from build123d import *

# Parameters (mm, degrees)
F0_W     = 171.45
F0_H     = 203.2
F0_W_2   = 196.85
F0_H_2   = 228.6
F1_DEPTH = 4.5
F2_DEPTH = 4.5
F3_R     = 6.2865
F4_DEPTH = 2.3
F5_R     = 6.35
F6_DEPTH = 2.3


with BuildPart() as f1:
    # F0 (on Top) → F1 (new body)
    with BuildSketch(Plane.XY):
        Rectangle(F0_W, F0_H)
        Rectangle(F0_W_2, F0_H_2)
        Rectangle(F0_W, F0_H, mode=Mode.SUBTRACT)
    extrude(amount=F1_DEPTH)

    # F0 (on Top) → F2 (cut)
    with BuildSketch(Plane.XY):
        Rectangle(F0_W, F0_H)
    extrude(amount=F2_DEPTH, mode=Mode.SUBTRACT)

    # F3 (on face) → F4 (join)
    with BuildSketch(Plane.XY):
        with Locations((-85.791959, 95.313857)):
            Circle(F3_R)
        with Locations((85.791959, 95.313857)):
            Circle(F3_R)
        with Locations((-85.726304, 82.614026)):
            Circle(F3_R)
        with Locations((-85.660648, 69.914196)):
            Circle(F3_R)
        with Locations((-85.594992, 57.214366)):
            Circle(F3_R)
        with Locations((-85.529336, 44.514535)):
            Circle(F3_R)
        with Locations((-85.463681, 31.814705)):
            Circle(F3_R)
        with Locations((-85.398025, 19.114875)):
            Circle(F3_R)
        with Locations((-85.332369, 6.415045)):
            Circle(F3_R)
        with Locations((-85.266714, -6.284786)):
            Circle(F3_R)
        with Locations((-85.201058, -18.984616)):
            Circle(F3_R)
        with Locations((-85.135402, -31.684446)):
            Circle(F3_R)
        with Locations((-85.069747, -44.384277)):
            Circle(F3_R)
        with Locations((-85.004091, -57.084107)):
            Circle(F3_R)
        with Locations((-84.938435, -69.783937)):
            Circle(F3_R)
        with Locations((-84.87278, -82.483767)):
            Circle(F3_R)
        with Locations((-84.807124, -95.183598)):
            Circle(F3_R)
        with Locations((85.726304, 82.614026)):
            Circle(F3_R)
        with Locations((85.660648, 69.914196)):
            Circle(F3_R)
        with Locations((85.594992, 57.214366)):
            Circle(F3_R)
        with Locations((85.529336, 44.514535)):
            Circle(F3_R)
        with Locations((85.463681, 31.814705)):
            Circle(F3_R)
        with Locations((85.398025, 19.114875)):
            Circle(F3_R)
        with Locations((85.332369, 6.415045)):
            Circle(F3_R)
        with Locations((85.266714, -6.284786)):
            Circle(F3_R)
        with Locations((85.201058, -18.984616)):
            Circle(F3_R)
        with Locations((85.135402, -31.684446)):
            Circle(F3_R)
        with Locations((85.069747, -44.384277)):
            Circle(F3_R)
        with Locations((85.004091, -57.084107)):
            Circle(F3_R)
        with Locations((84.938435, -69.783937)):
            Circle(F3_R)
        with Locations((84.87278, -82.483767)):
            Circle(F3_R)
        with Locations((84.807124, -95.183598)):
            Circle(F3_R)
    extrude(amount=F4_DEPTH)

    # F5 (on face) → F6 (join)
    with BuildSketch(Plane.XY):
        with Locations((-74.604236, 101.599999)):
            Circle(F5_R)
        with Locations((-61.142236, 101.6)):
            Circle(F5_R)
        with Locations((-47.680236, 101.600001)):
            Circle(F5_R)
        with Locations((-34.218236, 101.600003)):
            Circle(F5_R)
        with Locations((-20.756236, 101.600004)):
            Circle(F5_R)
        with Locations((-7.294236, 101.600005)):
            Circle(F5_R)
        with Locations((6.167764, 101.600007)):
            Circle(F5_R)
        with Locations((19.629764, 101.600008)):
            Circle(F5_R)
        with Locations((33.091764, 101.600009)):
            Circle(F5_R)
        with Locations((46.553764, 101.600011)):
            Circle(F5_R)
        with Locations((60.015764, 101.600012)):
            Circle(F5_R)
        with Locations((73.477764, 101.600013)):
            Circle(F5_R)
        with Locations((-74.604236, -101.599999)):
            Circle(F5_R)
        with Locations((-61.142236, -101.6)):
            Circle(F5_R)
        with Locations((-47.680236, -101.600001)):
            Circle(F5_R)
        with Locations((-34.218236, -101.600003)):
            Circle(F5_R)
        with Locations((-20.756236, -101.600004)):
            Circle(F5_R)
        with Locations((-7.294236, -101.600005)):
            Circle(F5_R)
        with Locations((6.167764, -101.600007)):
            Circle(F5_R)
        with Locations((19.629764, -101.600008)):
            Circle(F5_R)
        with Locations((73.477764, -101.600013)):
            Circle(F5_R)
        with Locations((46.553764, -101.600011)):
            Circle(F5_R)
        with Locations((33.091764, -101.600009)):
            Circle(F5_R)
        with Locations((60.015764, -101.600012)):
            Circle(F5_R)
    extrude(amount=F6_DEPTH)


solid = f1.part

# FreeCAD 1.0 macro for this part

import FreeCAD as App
import Part
import Sketcher
from FreeCAD import Vector
Q = App.Units.Quantity


def add_polygon(sketch, points):
    """Adds a closed chain of lines whose ends are joined by coincident constraints."""
    first, n = sketch.GeometryCount, len(points)
    for a, b in zip(points, points[1:] + points[:1]):
        sketch.addGeometry(Part.LineSegment(App.Vector(*a, 0), App.Vector(*b, 0)), False)
    for i in range(n):
        sketch.addConstraint(Sketcher.Constraint("Coincident", first + i, 2, first + (i + 1) % n, 1))

doc = App.newDocument("Part")
body = doc.addObject("PartDesign::Body", "Body")

# Sketch on XY plane
sketch1 = body.newObject("Sketcher::SketchObject", "Sketch")
sketch1.AttachmentSupport = (doc.getObject("XY_Plane"), [""])
sketch1.MapMode = "FlatFace"
add_polygon(sketch1, [(-98.425, 114.3), (-98.425, -114.3), (98.425, -114.3), (98.425, 114.3)])  # lines 0-3
add_polygon(sketch1, [(85.725, -101.6), (-85.725, -101.6), (-85.725, 101.6), (85.725, 101.6)])  # lines 4-7
sketch1.addConstraint(Sketcher.Constraint("Vertical", 0))
sketch1.addConstraint(Sketcher.Constraint("Horizontal", 1))
sketch1.addConstraint(Sketcher.Constraint("Vertical", 2))
sketch1.addConstraint(Sketcher.Constraint("Horizontal", 3))
sketch1.addConstraint(Sketcher.Constraint("Horizontal", 4))
sketch1.addConstraint(Sketcher.Constraint("Vertical", 5))
sketch1.addConstraint(Sketcher.Constraint("Horizontal", 6))
sketch1.addConstraint(Sketcher.Constraint("Vertical", 7))
sketch1.addConstraint(Sketcher.Constraint("Symmetric", 0, 2, 2, 2, -1, 1))
sketch1.addConstraint(Sketcher.Constraint("Symmetric", 4, 2, 6, 2, -1, 1))
sketch1.addConstraint(Sketcher.Constraint("DistanceY", 0, 2, 0, 1, Q("9 in")))
sketch1.addConstraint(Sketcher.Constraint("DistanceY", 5, 1, 5, 2, Q("8 in")))
sketch1.addConstraint(Sketcher.Constraint("DistanceX", 1, 1, 1, 2, Q("7.75 in")))
sketch1.addConstraint(Sketcher.Constraint("DistanceX", 4, 2, 4, 1, Q("6.75 in")))
pad1 = body.newObject("PartDesign::Pad", "Pad")
pad1.Profile = sketch1
pad1.Length = 4.5

# Sketch on XY plane
sketch2 = body.newObject("Sketcher::SketchObject", "Sketch001")
sketch2.AttachmentSupport = (doc.getObject("XY_Plane"), [""])
sketch2.MapMode = "FlatFace"
add_polygon(sketch2, [(-85.725, 101.6), (-85.725, -101.6), (85.725, -101.6), (85.725, 101.6)])  # lines 0-3
sketch2.addConstraint(Sketcher.Constraint("Vertical", 0))
sketch2.addConstraint(Sketcher.Constraint("Horizontal", 1))
sketch2.addConstraint(Sketcher.Constraint("Vertical", 2))
sketch2.addConstraint(Sketcher.Constraint("Horizontal", 3))
sketch2.addConstraint(Sketcher.Constraint("Symmetric", 0, 2, 2, 2, -1, 1))
sketch2.addConstraint(Sketcher.Constraint("DistanceY", 0, 2, 0, 1, Q("8 in")))
sketch2.addConstraint(Sketcher.Constraint("DistanceX", 1, 1, 1, 2, Q("6.75 in")))
pocket1 = body.newObject("PartDesign::Pocket", "Pocket")
pocket1.Profile = sketch2
pocket1.Length = 4.5
pocket1.Reversed = True

# Sketch on XY plane
sketch3 = body.newObject("Sketcher::SketchObject", "Sketch002")
sketch3.AttachmentSupport = (doc.getObject("XY_Plane"), [""])
sketch3.MapMode = "FlatFace"
sketch3.addGeometry(Part.Circle(Vector(-85.791959, 95.313857, 0), Vector(0, 0, 1), 6.2865), False)
sketch3.addGeometry(Part.Circle(Vector(85.791959, 95.313857, 0), Vector(0, 0, 1), 6.2865), False)
sketch3.addGeometry(Part.Circle(Vector(-85.726304, 82.614026, 0), Vector(0, 0, 1), 6.2865), False)
sketch3.addGeometry(Part.Circle(Vector(-85.660648, 69.914196, 0), Vector(0, 0, 1), 6.2865), False)
sketch3.addGeometry(Part.Circle(Vector(-85.594992, 57.214366, 0), Vector(0, 0, 1), 6.2865), False)
sketch3.addGeometry(Part.Circle(Vector(-85.529336, 44.514535, 0), Vector(0, 0, 1), 6.2865), False)
sketch3.addGeometry(Part.Circle(Vector(-85.463681, 31.814705, 0), Vector(0, 0, 1), 6.2865), False)
sketch3.addGeometry(Part.Circle(Vector(-85.398025, 19.114875, 0), Vector(0, 0, 1), 6.2865), False)
sketch3.addGeometry(Part.Circle(Vector(-85.332369, 6.415045, 0), Vector(0, 0, 1), 6.2865), False)
sketch3.addGeometry(Part.Circle(Vector(-85.266714, -6.284786, 0), Vector(0, 0, 1), 6.2865), False)
sketch3.addGeometry(Part.Circle(Vector(-85.201058, -18.984616, 0), Vector(0, 0, 1), 6.2865), False)
sketch3.addGeometry(Part.Circle(Vector(-85.135402, -31.684446, 0), Vector(0, 0, 1), 6.2865), False)
sketch3.addGeometry(Part.Circle(Vector(-85.069747, -44.384277, 0), Vector(0, 0, 1), 6.2865), False)
sketch3.addGeometry(Part.Circle(Vector(-85.004091, -57.084107, 0), Vector(0, 0, 1), 6.2865), False)
sketch3.addGeometry(Part.Circle(Vector(-84.938435, -69.783937, 0), Vector(0, 0, 1), 6.2865), False)
sketch3.addGeometry(Part.Circle(Vector(-84.87278, -82.483767, 0), Vector(0, 0, 1), 6.2865), False)
sketch3.addGeometry(Part.Circle(Vector(-84.807124, -95.183598, 0), Vector(0, 0, 1), 6.2865), False)
sketch3.addGeometry(Part.Circle(Vector(85.726304, 82.614026, 0), Vector(0, 0, 1), 6.2865), False)
sketch3.addGeometry(Part.Circle(Vector(85.660648, 69.914196, 0), Vector(0, 0, 1), 6.2865), False)
sketch3.addGeometry(Part.Circle(Vector(85.594992, 57.214366, 0), Vector(0, 0, 1), 6.2865), False)
sketch3.addGeometry(Part.Circle(Vector(85.529336, 44.514535, 0), Vector(0, 0, 1), 6.2865), False)
sketch3.addGeometry(Part.Circle(Vector(85.463681, 31.814705, 0), Vector(0, 0, 1), 6.2865), False)
sketch3.addGeometry(Part.Circle(Vector(85.398025, 19.114875, 0), Vector(0, 0, 1), 6.2865), False)
sketch3.addGeometry(Part.Circle(Vector(85.332369, 6.415045, 0), Vector(0, 0, 1), 6.2865), False)
sketch3.addGeometry(Part.Circle(Vector(85.266714, -6.284786, 0), Vector(0, 0, 1), 6.2865), False)
sketch3.addGeometry(Part.Circle(Vector(85.201058, -18.984616, 0), Vector(0, 0, 1), 6.2865), False)
sketch3.addGeometry(Part.Circle(Vector(85.135402, -31.684446, 0), Vector(0, 0, 1), 6.2865), False)
sketch3.addGeometry(Part.Circle(Vector(85.069747, -44.384277, 0), Vector(0, 0, 1), 6.2865), False)
sketch3.addGeometry(Part.Circle(Vector(85.004091, -57.084107, 0), Vector(0, 0, 1), 6.2865), False)
sketch3.addGeometry(Part.Circle(Vector(84.938435, -69.783937, 0), Vector(0, 0, 1), 6.2865), False)
sketch3.addGeometry(Part.Circle(Vector(84.87278, -82.483767, 0), Vector(0, 0, 1), 6.2865), False)
sketch3.addGeometry(Part.Circle(Vector(84.807124, -95.183598, 0), Vector(0, 0, 1), 6.2865), False)
sketch3.addConstraint(Sketcher.Constraint("Equal", 0, 1))
sketch3.addConstraint(Sketcher.Constraint("Equal", 1, 2))
sketch3.addConstraint(Sketcher.Constraint("Equal", 2, 3))
sketch3.addConstraint(Sketcher.Constraint("Equal", 3, 4))
sketch3.addConstraint(Sketcher.Constraint("Equal", 4, 5))
sketch3.addConstraint(Sketcher.Constraint("Equal", 5, 6))
sketch3.addConstraint(Sketcher.Constraint("Equal", 6, 7))
sketch3.addConstraint(Sketcher.Constraint("Equal", 7, 8))
sketch3.addConstraint(Sketcher.Constraint("Equal", 8, 9))
sketch3.addConstraint(Sketcher.Constraint("Equal", 9, 10))
sketch3.addConstraint(Sketcher.Constraint("Equal", 10, 11))
sketch3.addConstraint(Sketcher.Constraint("Equal", 11, 12))
sketch3.addConstraint(Sketcher.Constraint("Equal", 12, 13))
sketch3.addConstraint(Sketcher.Constraint("Equal", 13, 14))
sketch3.addConstraint(Sketcher.Constraint("Equal", 14, 15))
sketch3.addConstraint(Sketcher.Constraint("Equal", 15, 16))
sketch3.addConstraint(Sketcher.Constraint("Equal", 16, 17))
sketch3.addConstraint(Sketcher.Constraint("Equal", 17, 18))
sketch3.addConstraint(Sketcher.Constraint("Equal", 18, 19))
sketch3.addConstraint(Sketcher.Constraint("Equal", 19, 20))
sketch3.addConstraint(Sketcher.Constraint("Equal", 20, 21))
sketch3.addConstraint(Sketcher.Constraint("Equal", 21, 22))
sketch3.addConstraint(Sketcher.Constraint("Equal", 22, 23))
sketch3.addConstraint(Sketcher.Constraint("Equal", 23, 24))
sketch3.addConstraint(Sketcher.Constraint("Equal", 24, 25))
sketch3.addConstraint(Sketcher.Constraint("Equal", 25, 26))
sketch3.addConstraint(Sketcher.Constraint("Equal", 26, 27))
sketch3.addConstraint(Sketcher.Constraint("Equal", 27, 28))
sketch3.addConstraint(Sketcher.Constraint("Equal", 28, 29))
sketch3.addConstraint(Sketcher.Constraint("Equal", 29, 30))
sketch3.addConstraint(Sketcher.Constraint("Equal", 30, 31))
sketch3.addConstraint(Sketcher.Constraint("Symmetric", 0, 3, 1, 3, -2))
sketch3.addConstraint(Sketcher.Constraint("Symmetric", 2, 3, 17, 3, -2))
sketch3.addConstraint(Sketcher.Constraint("Symmetric", 3, 3, 18, 3, -2))
sketch3.addConstraint(Sketcher.Constraint("Symmetric", 4, 3, 19, 3, -2))
sketch3.addConstraint(Sketcher.Constraint("Symmetric", 5, 3, 20, 3, -2))
sketch3.addConstraint(Sketcher.Constraint("Symmetric", 6, 3, 21, 3, -2))
sketch3.addConstraint(Sketcher.Constraint("Symmetric", 7, 3, 22, 3, -2))
sketch3.addConstraint(Sketcher.Constraint("Symmetric", 8, 3, 23, 3, -2))
sketch3.addConstraint(Sketcher.Constraint("Symmetric", 9, 3, 24, 3, -2))
sketch3.addConstraint(Sketcher.Constraint("Symmetric", 10, 3, 25, 3, -2))
sketch3.addConstraint(Sketcher.Constraint("Symmetric", 11, 3, 26, 3, -2))
sketch3.addConstraint(Sketcher.Constraint("Symmetric", 12, 3, 27, 3, -2))
sketch3.addConstraint(Sketcher.Constraint("Symmetric", 13, 3, 28, 3, -2))
sketch3.addConstraint(Sketcher.Constraint("Symmetric", 14, 3, 29, 3, -2))
sketch3.addConstraint(Sketcher.Constraint("Symmetric", 15, 3, 30, 3, -2))
sketch3.addConstraint(Sketcher.Constraint("Symmetric", 16, 3, 31, 3, -2))
sketch3.addConstraint(Sketcher.Constraint("Diameter", 0, Q("0.495 in")))
sketch3.addConstraint(Sketcher.Constraint("DistanceX", 11, 3, -1, 1, 85.135402))
sketch3.addConstraint(Sketcher.Constraint("DistanceY", 16, 3, -1, 1, 95.183598))
sketch3.addConstraint(Sketcher.Constraint("DistanceX", 0, 3, -1, 1, 85.791959))
sketch3.addConstraint(Sketcher.Constraint("DistanceX", 6, 3, -1, 1, 85.463681))
sketch3.addConstraint(Sketcher.Constraint("DistanceX", 8, 3, -1, 1, 85.332369))
sketch3.addConstraint(Sketcher.Constraint("DistanceX", 10, 3, -1, 1, 85.201058))
sketch3.addConstraint(Sketcher.Constraint("DistanceX", 13, 3, -1, 1, 85.004091))
sketch3.addConstraint(Sketcher.Constraint("DistanceX", 15, 3, -1, 1, 84.87278))
sketch3.addConstraint(Sketcher.Constraint("DistanceY", 2, 3, 0, 3, 12.699831))
sketch3.addConstraint(Sketcher.Constraint("DistanceY", 3, 3, 2, 3, 12.69983))
sketch3.addConstraint(Sketcher.Constraint("DistanceX", 0, 3, 3, 3, 0.131311))
sketch3.addConstraint(Sketcher.Constraint("DistanceY", 4, 3, 3, 3, 12.69983))
sketch3.addConstraint(Sketcher.Constraint("DistanceX", 2, 3, 4, 3, 0.131312))
sketch3.addConstraint(Sketcher.Constraint("DistanceX", 4, 3, 1, 3, 171.386951))
sketch3.addConstraint(Sketcher.Constraint("DistanceY", 5, 3, 4, 3, 12.699831))
sketch3.addConstraint(Sketcher.Constraint("DistanceX", 3, 3, 5, 3, 0.131312))
sketch3.addConstraint(Sketcher.Constraint("DistanceY", 6, 3, 5, 3, 12.69983))
sketch3.addConstraint(Sketcher.Constraint("DistanceY", 7, 3, 6, 3, 12.69983))
sketch3.addConstraint(Sketcher.Constraint("DistanceX", 5, 3, 7, 3, 0.131311))
sketch3.addConstraint(Sketcher.Constraint("DistanceY", 8, 3, 7, 3, 12.69983))
sketch3.addConstraint(Sketcher.Constraint("DistanceY", 9, 3, 8, 3, 12.699831))
sketch3.addConstraint(Sketcher.Constraint("DistanceX", 7, 3, 9, 3, 0.131311))
sketch3.addConstraint(Sketcher.Constraint("DistanceY", 10, 3, 9, 3, 12.69983))
sketch3.addConstraint(Sketcher.Constraint("DistanceY", 11, 3, 10, 3, 12.69983))
sketch3.addConstraint(Sketcher.Constraint("DistanceY", 12, 3, 11, 3, 12.699831))
sketch3.addConstraint(Sketcher.Constraint("DistanceX", 10, 3, 12, 3, 0.131311))
sketch3.addConstraint(Sketcher.Constraint("DistanceY", 13, 3, 12, 3, 12.69983))
sketch3.addConstraint(Sketcher.Constraint("DistanceY", 14, 3, 13, 3, 12.69983))
sketch3.addConstraint(Sketcher.Constraint("DistanceX", 9, 3, 14, 3, 0.328279))
sketch3.addConstraint(Sketcher.Constraint("DistanceY", 15, 3, 14, 3, 12.69983))
sketch3.addConstraint(Sketcher.Constraint("DistanceY", 16, 3, 15, 3, 12.699831))
sketch3.addConstraint(Sketcher.Constraint("DistanceX", 14, 3, 16, 3, 0.131311))
pad2 = body.newObject("PartDesign::Pad", "Pad001")
pad2.Profile = sketch3
pad2.Length = 2.3

# Sketch on XY plane
sketch4 = body.newObject("Sketcher::SketchObject", "Sketch003")
sketch4.AttachmentSupport = (doc.getObject("XY_Plane"), [""])
sketch4.MapMode = "FlatFace"
sketch4.addGeometry(Part.Circle(Vector(-74.604236, 101.599999, 0), Vector(0, 0, 1), 6.35), False)
sketch4.addGeometry(Part.Circle(Vector(-61.142236, 101.6, 0), Vector(0, 0, 1), 6.35), False)
sketch4.addGeometry(Part.Circle(Vector(-47.680236, 101.600001, 0), Vector(0, 0, 1), 6.35), False)
sketch4.addGeometry(Part.Circle(Vector(-34.218236, 101.600003, 0), Vector(0, 0, 1), 6.35), False)
sketch4.addGeometry(Part.Circle(Vector(-20.756236, 101.600004, 0), Vector(0, 0, 1), 6.35), False)
sketch4.addGeometry(Part.Circle(Vector(-7.294236, 101.600005, 0), Vector(0, 0, 1), 6.35), False)
sketch4.addGeometry(Part.Circle(Vector(6.167764, 101.600007, 0), Vector(0, 0, 1), 6.35), False)
sketch4.addGeometry(Part.Circle(Vector(19.629764, 101.600008, 0), Vector(0, 0, 1), 6.35), False)
sketch4.addGeometry(Part.Circle(Vector(33.091764, 101.600009, 0), Vector(0, 0, 1), 6.35), False)
sketch4.addGeometry(Part.Circle(Vector(46.553764, 101.600011, 0), Vector(0, 0, 1), 6.35), False)
sketch4.addGeometry(Part.Circle(Vector(60.015764, 101.600012, 0), Vector(0, 0, 1), 6.35), False)
sketch4.addGeometry(Part.Circle(Vector(73.477764, 101.600013, 0), Vector(0, 0, 1), 6.35), False)
sketch4.addGeometry(Part.Circle(Vector(-74.604236, -101.599999, 0), Vector(0, 0, 1), 6.35), False)
sketch4.addGeometry(Part.Circle(Vector(-61.142236, -101.6, 0), Vector(0, 0, 1), 6.35), False)
sketch4.addGeometry(Part.Circle(Vector(-47.680236, -101.600001, 0), Vector(0, 0, 1), 6.35), False)
sketch4.addGeometry(Part.Circle(Vector(-34.218236, -101.600003, 0), Vector(0, 0, 1), 6.35), False)
sketch4.addGeometry(Part.Circle(Vector(-20.756236, -101.600004, 0), Vector(0, 0, 1), 6.35), False)
sketch4.addGeometry(Part.Circle(Vector(-7.294236, -101.600005, 0), Vector(0, 0, 1), 6.35), False)
sketch4.addGeometry(Part.Circle(Vector(6.167764, -101.600007, 0), Vector(0, 0, 1), 6.35), False)
sketch4.addGeometry(Part.Circle(Vector(19.629764, -101.600008, 0), Vector(0, 0, 1), 6.35), False)
sketch4.addGeometry(Part.Circle(Vector(73.477764, -101.600013, 0), Vector(0, 0, 1), 6.35), False)
sketch4.addGeometry(Part.Circle(Vector(46.553764, -101.600011, 0), Vector(0, 0, 1), 6.35), False)
sketch4.addGeometry(Part.Circle(Vector(33.091764, -101.600009, 0), Vector(0, 0, 1), 6.35), False)
sketch4.addGeometry(Part.Circle(Vector(60.015764, -101.600012, 0), Vector(0, 0, 1), 6.35), False)
sketch4.addConstraint(Sketcher.Constraint("Equal", 0, 1))
sketch4.addConstraint(Sketcher.Constraint("Equal", 1, 2))
sketch4.addConstraint(Sketcher.Constraint("Equal", 2, 3))
sketch4.addConstraint(Sketcher.Constraint("Equal", 3, 4))
sketch4.addConstraint(Sketcher.Constraint("Equal", 4, 5))
sketch4.addConstraint(Sketcher.Constraint("Equal", 5, 6))
sketch4.addConstraint(Sketcher.Constraint("Equal", 6, 7))
sketch4.addConstraint(Sketcher.Constraint("Equal", 7, 8))
sketch4.addConstraint(Sketcher.Constraint("Equal", 8, 9))
sketch4.addConstraint(Sketcher.Constraint("Equal", 9, 10))
sketch4.addConstraint(Sketcher.Constraint("Equal", 10, 11))
sketch4.addConstraint(Sketcher.Constraint("Equal", 11, 12))
sketch4.addConstraint(Sketcher.Constraint("Equal", 12, 13))
sketch4.addConstraint(Sketcher.Constraint("Equal", 13, 14))
sketch4.addConstraint(Sketcher.Constraint("Equal", 14, 15))
sketch4.addConstraint(Sketcher.Constraint("Equal", 15, 16))
sketch4.addConstraint(Sketcher.Constraint("Equal", 16, 17))
sketch4.addConstraint(Sketcher.Constraint("Equal", 17, 18))
sketch4.addConstraint(Sketcher.Constraint("Equal", 18, 19))
sketch4.addConstraint(Sketcher.Constraint("Equal", 19, 20))
sketch4.addConstraint(Sketcher.Constraint("Equal", 20, 21))
sketch4.addConstraint(Sketcher.Constraint("Equal", 21, 22))
sketch4.addConstraint(Sketcher.Constraint("Equal", 22, 23))
sketch4.addConstraint(Sketcher.Constraint("Symmetric", 0, 3, 12, 3, -1))
sketch4.addConstraint(Sketcher.Constraint("Symmetric", 1, 3, 13, 3, -1))
sketch4.addConstraint(Sketcher.Constraint("Symmetric", 2, 3, 14, 3, -1))
sketch4.addConstraint(Sketcher.Constraint("Symmetric", 3, 3, 15, 3, -1))
sketch4.addConstraint(Sketcher.Constraint("Symmetric", 4, 3, 16, 3, -1))
sketch4.addConstraint(Sketcher.Constraint("Symmetric", 5, 3, 17, 3, -1))
sketch4.addConstraint(Sketcher.Constraint("Symmetric", 6, 3, 18, 3, -1))
sketch4.addConstraint(Sketcher.Constraint("Symmetric", 7, 3, 19, 3, -1))
sketch4.addConstraint(Sketcher.Constraint("Symmetric", 11, 3, 20, 3, -1))
sketch4.addConstraint(Sketcher.Constraint("Symmetric", 9, 3, 21, 3, -1))
sketch4.addConstraint(Sketcher.Constraint("Symmetric", 8, 3, 22, 3, -1))
sketch4.addConstraint(Sketcher.Constraint("Symmetric", 10, 3, 23, 3, -1))
sketch4.addConstraint(Sketcher.Constraint("Horizontal", 0, 3, 1, 3))
sketch4.addConstraint(Sketcher.Constraint("Horizontal", 1, 3, 2, 3))
sketch4.addConstraint(Sketcher.Constraint("Horizontal", 2, 3, 3, 3))
sketch4.addConstraint(Sketcher.Constraint("Horizontal", 3, 3, 4, 3))
sketch4.addConstraint(Sketcher.Constraint("Horizontal", 4, 3, 5, 3))
sketch4.addConstraint(Sketcher.Constraint("Horizontal", 6, 3, 7, 3))
sketch4.addConstraint(Sketcher.Constraint("Horizontal", 7, 3, 8, 3))
sketch4.addConstraint(Sketcher.Constraint("Horizontal", 8, 3, 9, 3))
sketch4.addConstraint(Sketcher.Constraint("Horizontal", 9, 3, 10, 3))
sketch4.addConstraint(Sketcher.Constraint("Horizontal", 10, 3, 11, 3))
sketch4.addConstraint(Sketcher.Constraint("Diameter", 0, Q("0.5 in")))
sketch4.addConstraint(Sketcher.Constraint("DistanceY", -1, 1, 0, 3, Q("4 in")))
sketch4.addConstraint(Sketcher.Constraint("DistanceX", 0, 3, 1, 3, Q("0.53 in")))
sketch4.addConstraint(Sketcher.Constraint("DistanceX", 1, 3, 2, 3, Q("0.53 in")))
sketch4.addConstraint(Sketcher.Constraint("DistanceX", 2, 3, 3, 3, Q("0.53 in")))
sketch4.addConstraint(Sketcher.Constraint("DistanceX", 3, 3, 4, 3, Q("0.53 in")))
sketch4.addConstraint(Sketcher.Constraint("DistanceX", 4, 3, 5, 3, Q("0.53 in")))
sketch4.addConstraint(Sketcher.Constraint("DistanceX", 5, 3, 6, 3, Q("0.53 in")))
sketch4.addConstraint(Sketcher.Constraint("DistanceX", 6, 3, 7, 3, Q("0.53 in")))
sketch4.addConstraint(Sketcher.Constraint("DistanceX", 7, 3, 8, 3, Q("0.53 in")))
sketch4.addConstraint(Sketcher.Constraint("DistanceX", 8, 3, 9, 3, Q("0.53 in")))
sketch4.addConstraint(Sketcher.Constraint("DistanceX", 9, 3, 10, 3, Q("0.53 in")))
sketch4.addConstraint(Sketcher.Constraint("DistanceX", 10, 3, 11, 3, Q("0.53 in")))
sketch4.addConstraint(Sketcher.Constraint("DistanceY", -1, 1, 7, 3, 101.600008))
sketch4.addConstraint(Sketcher.Constraint("DistanceX", 0, 3, -1, 1, 74.604236))
pad3 = body.newObject("PartDesign::Pad", "Pad002")
pad3.Profile = sketch4
pad3.Length = 2.3

doc.recompute()
